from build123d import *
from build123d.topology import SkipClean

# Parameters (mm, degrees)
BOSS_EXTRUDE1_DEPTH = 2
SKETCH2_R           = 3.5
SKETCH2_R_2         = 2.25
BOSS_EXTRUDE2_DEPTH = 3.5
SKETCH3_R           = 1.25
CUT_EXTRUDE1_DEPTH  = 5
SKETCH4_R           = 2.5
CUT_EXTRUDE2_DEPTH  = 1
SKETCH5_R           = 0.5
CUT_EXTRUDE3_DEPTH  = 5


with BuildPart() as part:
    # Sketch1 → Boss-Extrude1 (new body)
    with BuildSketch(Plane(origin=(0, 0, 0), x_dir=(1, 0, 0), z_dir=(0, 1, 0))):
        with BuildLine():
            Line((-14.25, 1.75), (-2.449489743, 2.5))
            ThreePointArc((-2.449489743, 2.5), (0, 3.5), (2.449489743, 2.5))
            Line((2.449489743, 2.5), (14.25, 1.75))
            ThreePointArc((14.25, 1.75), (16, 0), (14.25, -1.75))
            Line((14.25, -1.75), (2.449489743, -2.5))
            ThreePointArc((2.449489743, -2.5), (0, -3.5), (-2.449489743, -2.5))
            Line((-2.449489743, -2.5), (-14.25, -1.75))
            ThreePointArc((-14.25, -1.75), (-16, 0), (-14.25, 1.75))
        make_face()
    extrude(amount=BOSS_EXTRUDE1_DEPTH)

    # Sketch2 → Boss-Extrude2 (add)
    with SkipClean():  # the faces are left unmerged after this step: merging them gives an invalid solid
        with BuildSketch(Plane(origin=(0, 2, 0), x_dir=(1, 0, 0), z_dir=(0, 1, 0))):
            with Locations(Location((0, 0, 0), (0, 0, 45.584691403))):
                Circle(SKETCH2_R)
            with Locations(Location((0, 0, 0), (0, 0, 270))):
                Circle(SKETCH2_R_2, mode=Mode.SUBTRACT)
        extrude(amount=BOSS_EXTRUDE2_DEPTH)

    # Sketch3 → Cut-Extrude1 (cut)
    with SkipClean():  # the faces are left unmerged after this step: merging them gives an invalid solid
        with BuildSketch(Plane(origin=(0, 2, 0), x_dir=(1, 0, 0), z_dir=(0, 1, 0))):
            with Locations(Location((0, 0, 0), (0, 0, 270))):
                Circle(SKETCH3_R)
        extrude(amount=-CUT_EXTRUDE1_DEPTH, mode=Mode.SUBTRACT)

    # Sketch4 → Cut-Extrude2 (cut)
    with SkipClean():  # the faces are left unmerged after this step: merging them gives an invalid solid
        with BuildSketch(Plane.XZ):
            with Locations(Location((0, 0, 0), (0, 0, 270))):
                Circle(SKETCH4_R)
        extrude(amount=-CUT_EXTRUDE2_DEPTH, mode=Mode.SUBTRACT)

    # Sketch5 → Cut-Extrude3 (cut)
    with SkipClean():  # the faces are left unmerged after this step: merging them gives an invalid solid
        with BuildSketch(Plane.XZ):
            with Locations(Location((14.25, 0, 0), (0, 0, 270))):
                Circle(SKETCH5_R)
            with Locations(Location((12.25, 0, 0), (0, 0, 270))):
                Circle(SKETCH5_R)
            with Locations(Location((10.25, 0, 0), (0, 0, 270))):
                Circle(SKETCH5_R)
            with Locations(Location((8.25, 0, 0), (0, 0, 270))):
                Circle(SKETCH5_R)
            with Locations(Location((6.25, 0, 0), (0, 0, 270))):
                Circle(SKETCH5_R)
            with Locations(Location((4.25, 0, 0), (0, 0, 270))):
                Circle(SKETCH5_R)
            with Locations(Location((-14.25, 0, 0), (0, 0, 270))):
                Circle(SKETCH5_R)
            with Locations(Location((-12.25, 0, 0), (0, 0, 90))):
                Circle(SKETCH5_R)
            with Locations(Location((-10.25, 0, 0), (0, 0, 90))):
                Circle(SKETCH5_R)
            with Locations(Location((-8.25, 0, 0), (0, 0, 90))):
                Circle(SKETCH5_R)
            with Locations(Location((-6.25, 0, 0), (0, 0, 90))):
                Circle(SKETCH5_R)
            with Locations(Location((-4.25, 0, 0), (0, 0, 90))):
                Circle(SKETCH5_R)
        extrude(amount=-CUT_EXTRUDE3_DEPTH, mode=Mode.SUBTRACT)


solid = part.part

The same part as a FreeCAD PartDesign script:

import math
import FreeCAD as App
import Part
import Sketcher

V = App.Vector

doc = App.newDocument("Part")
body = doc.addObject("PartDesign::Body", "Body")

# Sketch on XZ plane
sketch1 = doc.addObject("Sketcher::SketchObject", "Sketch")
body.addObject(sketch1)
sketch1.AttachmentSupport = (doc.XZ_Plane, [""])
sketch1.MapMode = "FlatFace"
sketch1.addGeometry([
    Part.LineSegment(V(-2.4, -2.5, 0), V(-14.2, -1.8, 0)),  # 0
    Part.ArcOfCircle(Part.Circle(V(-14.2, 0, 0), V(0, 0, 1), 1.8), math.radians(90), math.radians(270)),  # 1
    Part.LineSegment(V(-14.2, 1.8, 0), V(-2.4, 2.5, 0)),  # 2
    Part.ArcOfCircle(Part.Circle(V(0, 0, 0), V(0, 0, 1), 3.5), math.radians(46), math.radians(134)),  # 3
    Part.LineSegment(V(2.4, 2.5, 0), V(14.2, 1.8, 0)),  # 4
    Part.ArcOfCircle(Part.Circle(V(14.2, 0, 0), V(0, 0, 1), 1.8), math.radians(-90), math.radians(90)),  # 5
    Part.LineSegment(V(14.2, -1.8, 0), V(2.4, -2.5, 0)),  # 6
    Part.ArcOfCircle(Part.Circle(V(0, 0, 0), V(0, 0, 1), 3.5), math.radians(-134), math.radians(-46)),  # 7
], False)
sketch1.addConstraint([
    Sketcher.Constraint("Coincident", 0, 2, 1, 2),
    Sketcher.Constraint("Coincident", 1, 1, 2, 1),
    Sketcher.Constraint("Coincident", 2, 2, 3, 2),
    Sketcher.Constraint("Coincident", 3, 1, 4, 1),
    Sketcher.Constraint("Coincident", 4, 2, 5, 2),
    Sketcher.Constraint("Coincident", 5, 1, 6, 1),
    Sketcher.Constraint("Coincident", 6, 2, 7, 2),
    Sketcher.Constraint("Coincident", 7, 1, 0, 1),
    Sketcher.Constraint("Coincident", 3, 3, -1, 1),
    Sketcher.Constraint("Coincident", 7, 3, -1, 1),
    Sketcher.Constraint("Equal", 1, 5),
    Sketcher.Constraint("Equal", 3, 7),
    Sketcher.Constraint("Symmetric", 1, 3, 5, 3, -1, 1),
    Sketcher.Constraint("Symmetric", 1, 1, 4, 2, -2),
    Sketcher.Constraint("Parallel", 0, 4),
    Sketcher.Constraint("Parallel", 2, 6),
    Sketcher.Constraint("Horizontal", 2, 2, 3, 1),
    Sketcher.Constraint("Horizontal", 6, 2, 7, 1),
    Sketcher.Constraint("Vertical", 1, 3, 0, 2),
    Sketcher.Constraint("Vertical", 0, 2, 1, 1),
    Sketcher.Constraint("Radius", 3, 3.5),
    Sketcher.Constraint("Radius", 1, 1.75),
    Sketcher.Constraint("DistanceY", 6, 2, 3, 1, 5.0),
    Sketcher.Constraint("DistanceX", 1, 3, 5, 3, 28.5),
])
pad1 = doc.addObject("PartDesign::Pad", "Pad")
body.addObject(pad1)
pad1.Profile = sketch1
pad1.Length = 2
pad1.Reversed = True

# Sketch on XZ plane
sketch2 = doc.addObject("Sketcher::SketchObject", "Sketch001")
body.addObject(sketch2)
sketch2.AttachmentSupport = (doc.XZ_Plane, [""])
sketch2.MapMode = "FlatFace"
sketch2.AttachmentOffset = App.Placement(V(0, 0, -2), App.Rotation())
sketch2.addGeometry([
    Part.Circle(V(0, 0, 0), V(0, 0, 1), 3.5),
    Part.Circle(V(0, 0, 0), V(0, 0, 1), 2.2),
], False)
sketch2.addConstraint([
    Sketcher.Constraint("Coincident", 0, 3, -1, 1),
    Sketcher.Constraint("Coincident", 1, 3, -1, 1),
    Sketcher.Constraint("Diameter", 0, 7.0),
    Sketcher.Constraint("Diameter", 1, 4.5),
])
pad2 = doc.addObject("PartDesign::Pad", "Pad001")
body.addObject(pad2)
pad2.Profile = sketch2
pad2.Length = 3.5
pad2.Reversed = True

# Sketch on XZ plane
sketch3 = doc.addObject("Sketcher::SketchObject", "Sketch002")
body.addObject(sketch3)
sketch3.AttachmentSupport = (doc.XZ_Plane, [""])
sketch3.MapMode = "FlatFace"
sketch3.AttachmentOffset = App.Placement(V(0, 0, -2), App.Rotation())
sketch3.addGeometry(Part.Circle(V(0, 0, 0), V(0, 0, 1), 1.2), False)
sketch3.addConstraint([
    Sketcher.Constraint("Coincident", 0, 3, -1, 1),
    Sketcher.Constraint("Diameter", 0, 2.5),
])
pocket1 = doc.addObject("PartDesign::Pocket", "Pocket")
body.addObject(pocket1)
pocket1.Profile = sketch3
pocket1.Length = 5
pocket1.Reversed = True

# Sketch on XZ plane
sketch4 = doc.addObject("Sketcher::SketchObject", "Sketch003")
body.addObject(sketch4)
sketch4.AttachmentSupport = (doc.XZ_Plane, [""])
sketch4.MapMode = "FlatFace"
sketch4.addGeometry(Part.Circle(V(0, 0, 0), V(0, 0, 1), 2.5), False)
sketch4.addConstraint([
    Sketcher.Constraint("Coincident", 0, 3, -1, 1),
    Sketcher.Constraint("Diameter", 0, 5.0),
])
pocket2 = doc.addObject("PartDesign::Pocket", "Pocket001")
body.addObject(pocket2)
pocket2.Profile = sketch4
pocket2.Length = 1

# Sketch on XZ plane
sketch5 = doc.addObject("Sketcher::SketchObject", "Sketch004")
body.addObject(sketch5)
sketch5.AttachmentSupport = (doc.XZ_Plane, [""])
sketch5.MapMode = "FlatFace"
sketch5.addGeometry([
    Part.Circle(V(14.2, 0, 0), V(0, 0, 1), 0.5),  # 0
    Part.Circle(V(12.2, 0, 0), V(0, 0, 1), 0.5),  # 1
    Part.Circle(V(10.2, 0, 0), V(0, 0, 1), 0.5),  # 2
    Part.Circle(V(8.2, 0, 0), V(0, 0, 1), 0.5),  # 3
    Part.Circle(V(6.2, 0, 0), V(0, 0, 1), 0.5),  # 4
    Part.Circle(V(4.2, 0, 0), V(0, 0, 1), 0.5),  # 5
    Part.Circle(V(-14.2, 0, 0), V(0, 0, 1), 0.5),  # 6
    Part.Circle(V(-12.2, 0, 0), V(0, 0, 1), 0.5),  # 7
    Part.Circle(V(-10.2, 0, 0), V(0, 0, 1), 0.5),  # 8
    Part.Circle(V(-8.2, 0, 0), V(0, 0, 1), 0.5),  # 9
    Part.Circle(V(-6.2, 0, 0), V(0, 0, 1), 0.5),  # 10
    Part.Circle(V(-4.2, 0, 0), V(0, 0, 1), 0.5),  # 11
], False)
sketch5.addConstraint([
    Sketcher.Constraint("Equal", 0, 1),
    Sketcher.Constraint("Equal", 1, 2),
    Sketcher.Constraint("Equal", 2, 3),
    Sketcher.Constraint("Equal", 3, 4),
    Sketcher.Constraint("Equal", 4, 5),
    Sketcher.Constraint("Equal", 5, 6),
    Sketcher.Constraint("Equal", 6, 7),
    Sketcher.Constraint("Equal", 7, 8),
    Sketcher.Constraint("Equal", 8, 9),
    Sketcher.Constraint("Equal", 9, 10),
    Sketcher.Constraint("Equal", 10, 11),
    Sketcher.Constraint("Symmetric", 0, 3, 6, 3, -1, 1),
    Sketcher.Constraint("Symmetric", 1, 3, 7, 3, -1, 1),
    Sketcher.Constraint("Symmetric", 2, 3, 8, 3, -1, 1),
    Sketcher.Constraint("Symmetric", 3, 3, 9, 3, -1, 1),
    Sketcher.Constraint("Symmetric", 4, 3, 10, 3, -1, 1),
    Sketcher.Constraint("Symmetric", 5, 3, 11, 3, -1, 1),
    Sketcher.Constraint("PointOnObject", 0, 3, -1),
    Sketcher.Constraint("PointOnObject", 1, 3, -1),
    Sketcher.Constraint("PointOnObject", 2, 3, -1),
    Sketcher.Constraint("PointOnObject", 3, 3, -1),
    Sketcher.Constraint("PointOnObject", 4, 3, -1),
    Sketcher.Constraint("PointOnObject", 5, 3, -1),
    Sketcher.Constraint("Diameter", 0, 1.0),
    Sketcher.Constraint("DistanceX", 1, 3, 0, 3, 2.0),
    Sketcher.Constraint("DistanceX", 2, 3, 1, 3, 2.0),
    Sketcher.Constraint("DistanceX", 3, 3, 2, 3, 2.0),
    Sketcher.Constraint("DistanceX", 4, 3, 3, 3, 2.0),
    Sketcher.Constraint("DistanceX", 5, 3, 4, 3, 2.0),
    Sketcher.Constraint("DistanceX", 6, 3, 5, 3, 18.5),
])
pocket3 = doc.addObject("PartDesign::Pocket", "Pocket002")
body.addObject(pocket3)
pocket3.Profile = sketch5
pocket3.Length = 5

doc.recompute()
